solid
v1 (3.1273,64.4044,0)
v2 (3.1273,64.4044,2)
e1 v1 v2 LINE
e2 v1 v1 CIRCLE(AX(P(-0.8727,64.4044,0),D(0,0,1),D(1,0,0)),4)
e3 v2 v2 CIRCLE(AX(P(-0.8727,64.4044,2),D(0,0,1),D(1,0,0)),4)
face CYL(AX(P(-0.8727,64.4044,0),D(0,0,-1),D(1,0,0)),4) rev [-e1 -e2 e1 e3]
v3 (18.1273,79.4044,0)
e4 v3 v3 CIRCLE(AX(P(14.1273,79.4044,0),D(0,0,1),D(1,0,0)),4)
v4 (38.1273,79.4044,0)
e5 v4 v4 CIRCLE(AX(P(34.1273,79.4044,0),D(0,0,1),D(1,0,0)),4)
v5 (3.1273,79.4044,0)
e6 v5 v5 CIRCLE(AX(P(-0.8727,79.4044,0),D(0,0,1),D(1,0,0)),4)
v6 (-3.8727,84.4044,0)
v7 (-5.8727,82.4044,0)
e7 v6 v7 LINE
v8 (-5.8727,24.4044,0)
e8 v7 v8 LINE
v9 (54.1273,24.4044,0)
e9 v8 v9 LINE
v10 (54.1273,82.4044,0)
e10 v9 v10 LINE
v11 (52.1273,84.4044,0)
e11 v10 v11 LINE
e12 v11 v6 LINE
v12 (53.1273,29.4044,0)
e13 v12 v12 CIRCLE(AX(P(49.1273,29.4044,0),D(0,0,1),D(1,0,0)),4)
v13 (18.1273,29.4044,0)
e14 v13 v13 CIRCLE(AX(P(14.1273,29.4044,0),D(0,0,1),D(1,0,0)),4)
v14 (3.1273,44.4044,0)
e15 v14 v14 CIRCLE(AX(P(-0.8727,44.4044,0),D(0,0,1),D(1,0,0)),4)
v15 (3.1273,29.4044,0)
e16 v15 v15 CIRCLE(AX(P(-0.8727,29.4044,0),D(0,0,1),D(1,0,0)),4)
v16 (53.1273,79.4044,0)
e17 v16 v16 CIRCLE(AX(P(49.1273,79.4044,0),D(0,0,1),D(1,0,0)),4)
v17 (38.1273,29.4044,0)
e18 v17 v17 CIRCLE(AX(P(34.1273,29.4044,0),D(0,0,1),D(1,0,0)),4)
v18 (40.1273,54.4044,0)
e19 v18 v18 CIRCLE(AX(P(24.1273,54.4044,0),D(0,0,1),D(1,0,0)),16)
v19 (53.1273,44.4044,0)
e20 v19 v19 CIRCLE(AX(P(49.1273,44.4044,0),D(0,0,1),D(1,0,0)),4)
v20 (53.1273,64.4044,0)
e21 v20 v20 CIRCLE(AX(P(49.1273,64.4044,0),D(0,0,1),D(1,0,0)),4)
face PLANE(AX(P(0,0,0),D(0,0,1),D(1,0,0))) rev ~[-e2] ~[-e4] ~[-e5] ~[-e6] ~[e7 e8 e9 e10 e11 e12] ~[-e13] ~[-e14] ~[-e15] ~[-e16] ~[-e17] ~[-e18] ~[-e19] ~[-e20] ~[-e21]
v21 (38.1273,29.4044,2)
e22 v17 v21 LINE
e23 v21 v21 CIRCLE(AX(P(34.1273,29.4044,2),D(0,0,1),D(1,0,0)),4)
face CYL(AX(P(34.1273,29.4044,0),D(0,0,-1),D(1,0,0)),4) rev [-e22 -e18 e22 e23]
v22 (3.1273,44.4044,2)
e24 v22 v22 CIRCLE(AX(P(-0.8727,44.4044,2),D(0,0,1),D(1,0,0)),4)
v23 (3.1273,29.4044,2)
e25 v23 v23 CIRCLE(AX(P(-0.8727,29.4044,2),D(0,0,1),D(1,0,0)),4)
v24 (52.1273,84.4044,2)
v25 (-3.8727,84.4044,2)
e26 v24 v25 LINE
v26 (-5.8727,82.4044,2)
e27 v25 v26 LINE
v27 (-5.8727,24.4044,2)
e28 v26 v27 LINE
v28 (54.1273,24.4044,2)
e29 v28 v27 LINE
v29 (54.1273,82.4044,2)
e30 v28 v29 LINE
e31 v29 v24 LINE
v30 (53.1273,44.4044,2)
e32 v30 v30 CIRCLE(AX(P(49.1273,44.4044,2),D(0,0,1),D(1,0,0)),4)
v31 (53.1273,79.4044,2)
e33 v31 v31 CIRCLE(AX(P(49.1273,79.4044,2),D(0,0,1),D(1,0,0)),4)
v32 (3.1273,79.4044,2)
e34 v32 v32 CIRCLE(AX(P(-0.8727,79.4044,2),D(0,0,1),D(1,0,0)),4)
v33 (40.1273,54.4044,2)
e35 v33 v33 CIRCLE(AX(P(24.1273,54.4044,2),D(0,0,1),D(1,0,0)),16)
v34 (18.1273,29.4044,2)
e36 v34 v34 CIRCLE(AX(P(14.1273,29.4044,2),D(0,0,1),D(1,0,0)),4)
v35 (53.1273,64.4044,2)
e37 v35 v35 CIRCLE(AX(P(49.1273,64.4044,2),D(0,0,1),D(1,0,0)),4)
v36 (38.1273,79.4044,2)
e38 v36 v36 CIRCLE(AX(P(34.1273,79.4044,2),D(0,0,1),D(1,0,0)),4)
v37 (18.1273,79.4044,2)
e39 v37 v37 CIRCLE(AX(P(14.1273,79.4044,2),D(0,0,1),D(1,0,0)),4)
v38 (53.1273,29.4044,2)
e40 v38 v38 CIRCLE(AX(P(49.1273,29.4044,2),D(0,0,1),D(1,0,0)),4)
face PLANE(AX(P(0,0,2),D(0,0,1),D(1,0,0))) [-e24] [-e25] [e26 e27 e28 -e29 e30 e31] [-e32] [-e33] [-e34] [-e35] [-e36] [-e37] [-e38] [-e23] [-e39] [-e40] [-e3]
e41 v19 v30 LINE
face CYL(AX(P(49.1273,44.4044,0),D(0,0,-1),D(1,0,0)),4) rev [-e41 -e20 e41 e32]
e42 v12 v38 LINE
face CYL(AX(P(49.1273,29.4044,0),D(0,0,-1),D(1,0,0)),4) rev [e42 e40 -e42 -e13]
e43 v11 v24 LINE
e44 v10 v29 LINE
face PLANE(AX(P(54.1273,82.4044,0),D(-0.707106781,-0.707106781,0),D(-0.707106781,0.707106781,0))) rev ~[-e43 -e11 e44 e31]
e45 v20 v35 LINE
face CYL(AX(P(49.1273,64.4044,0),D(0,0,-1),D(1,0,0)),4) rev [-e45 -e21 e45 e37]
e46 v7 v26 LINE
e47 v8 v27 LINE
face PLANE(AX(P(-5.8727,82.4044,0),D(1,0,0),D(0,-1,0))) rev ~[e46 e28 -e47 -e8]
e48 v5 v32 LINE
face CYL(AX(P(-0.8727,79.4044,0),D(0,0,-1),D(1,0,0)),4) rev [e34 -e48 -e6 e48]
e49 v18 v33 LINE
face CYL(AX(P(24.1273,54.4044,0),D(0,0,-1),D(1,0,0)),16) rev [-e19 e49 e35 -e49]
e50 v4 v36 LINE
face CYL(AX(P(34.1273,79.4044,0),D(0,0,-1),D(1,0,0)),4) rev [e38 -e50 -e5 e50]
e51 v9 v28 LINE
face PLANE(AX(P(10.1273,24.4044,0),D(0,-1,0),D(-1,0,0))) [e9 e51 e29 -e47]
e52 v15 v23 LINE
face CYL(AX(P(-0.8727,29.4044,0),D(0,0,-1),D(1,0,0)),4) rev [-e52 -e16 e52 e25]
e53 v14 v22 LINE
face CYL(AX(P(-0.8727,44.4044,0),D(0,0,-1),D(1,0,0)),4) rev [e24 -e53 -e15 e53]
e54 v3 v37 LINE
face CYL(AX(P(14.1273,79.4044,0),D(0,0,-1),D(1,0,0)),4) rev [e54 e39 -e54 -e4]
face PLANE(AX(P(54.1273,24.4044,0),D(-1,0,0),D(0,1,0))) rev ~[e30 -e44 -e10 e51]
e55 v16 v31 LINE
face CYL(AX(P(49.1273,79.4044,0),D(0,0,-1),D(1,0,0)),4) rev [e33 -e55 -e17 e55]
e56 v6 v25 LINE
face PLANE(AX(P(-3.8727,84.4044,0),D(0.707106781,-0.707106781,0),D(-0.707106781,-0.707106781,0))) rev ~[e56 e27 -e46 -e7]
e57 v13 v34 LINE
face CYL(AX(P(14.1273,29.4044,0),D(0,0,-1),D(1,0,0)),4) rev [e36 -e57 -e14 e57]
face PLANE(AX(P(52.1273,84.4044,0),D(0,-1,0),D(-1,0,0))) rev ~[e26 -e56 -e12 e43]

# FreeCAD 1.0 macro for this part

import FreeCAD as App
import Part
import Sketcher

V = App.Vector


def add_polygon(sketch, points):
    """Adds a closed chain of lines whose ends are joined by coincident constraints."""
    first, n = sketch.GeometryCount, len(points)
    for a, b in zip(points, points[1:] + points[:1]):
        sketch.addGeometry(Part.LineSegment(App.Vector(*a, 0), App.Vector(*b, 0)), False)
    for i in range(n):
        sketch.addConstraint(Sketcher.Constraint("Coincident", first + i, 2, first + (i + 1) % n, 1))

doc = App.newDocument("Part")
params = doc.addObject("Spreadsheet::Sheet", "Params")
for row, (alias, value) in enumerate([
    ("sketch1_diameter", "8 mm"),
    ("sketch1_diameter2", "32 mm"),
    ("sketch1_width", "60 mm"),
    ("sketch1_width2", "56 mm"),
    ("sketch1_height", "58 mm"),
    ("pad1_length", "2 mm"),
], start=1):
    params.set(f"A{row}", alias)
    params.set(f"B{row}", "=" + value)
    params.setAlias(f"B{row}", alias)

body = doc.addObject("PartDesign::Body", "Body")

sketch1 = body.newObject("Sketcher::SketchObject", "Sketch")
sketch1.AttachmentSupport = (doc.getObject("XY_Plane"), [""])
sketch1.MapMode = "FlatFace"
add_polygon(sketch1, [(-5.9, 82.4), (-5.9, 24.4), (54.1, 24.4), (54.1, 82.4), (52.1, 84.4), (-3.9, 84.4)])
sketch1.addGeometry(Part.Circle(V(-0.9, 29.4, 0), V(0, 0, 1), 4), False)
sketch1.addGeometry(Part.Circle(V(-0.9, 44.4, 0), V(0, 0, 1), 4), False)
sketch1.addGeometry(Part.Circle(V(14.1, 29.4, 0), V(0, 0, 1), 4), False)
sketch1.addGeometry(Part.Circle(V(-0.9, 64.4, 0), V(0, 0, 1), 4), False)
sketch1.addGeometry(Part.Circle(V(-0.9, 79.4, 0), V(0, 0, 1), 4), False)
sketch1.addGeometry(Part.Circle(V(14.1, 79.4, 0), V(0, 0, 1), 4), False)
sketch1.addGeometry(Part.Circle(V(34.1, 29.4, 0), V(0, 0, 1), 4), False)
sketch1.addGeometry(Part.Circle(V(24.1, 54.4, 0), V(0, 0, 1), 16), False)
sketch1.addGeometry(Part.Circle(V(49.1, 29.4, 0), V(0, 0, 1), 4), False)
sketch1.addGeometry(Part.Circle(V(49.1, 44.4, 0), V(0, 0, 1), 4), False)
sketch1.addGeometry(Part.Circle(V(34.1, 79.4, 0), V(0, 0, 1), 4), False)
sketch1.addGeometry(Part.Circle(V(49.1, 64.4, 0), V(0, 0, 1), 4), False)
sketch1.addGeometry(Part.Circle(V(49.1, 79.4, 0), V(0, 0, 1), 4), False)
sketch1.addConstraint(Sketcher.Constraint("Vertical", 0))
sketch1.addConstraint(Sketcher.Constraint("Horizontal", 1))
sketch1.addConstraint(Sketcher.Constraint("Vertical", 2))
sketch1.addConstraint(Sketcher.Constraint("Horizontal", 4))
sketch1.addConstraint(Sketcher.Constraint("Equal", 6, 7))
sketch1.addConstraint(Sketcher.Constraint("Equal", 7, 8))
sketch1.addConstraint(Sketcher.Constraint("Equal", 8, 9))
sketch1.addConstraint(Sketcher.Constraint("Equal", 9, 10))
sketch1.addConstraint(Sketcher.Constraint("Equal", 10, 11))
sketch1.addConstraint(Sketcher.Constraint("Equal", 11, 12))
sketch1.addConstraint(Sketcher.Constraint("Equal", 12, 14))
sketch1.addConstraint(Sketcher.Constraint("Equal", 14, 15))
sketch1.addConstraint(Sketcher.Constraint("Equal", 15, 16))
sketch1.addConstraint(Sketcher.Constraint("Equal", 16, 17))
sketch1.addConstraint(Sketcher.Constraint("Equal", 17, 18))
sketch1.addConstraint(Sketcher.Constraint("Perpendicular", 3, 5))
sketch1.addConstraint(Sketcher.Constraint("Horizontal", 6, 3, 8, 3))
sketch1.addConstraint(Sketcher.Constraint("Horizontal", 10, 3, 11, 3))
sketch1.addConstraint(Sketcher.Constraint("Horizontal", 8, 3, 12, 3))
sketch1.addConstraint(Sketcher.Constraint("Horizontal", 12, 3, 14, 3))
sketch1.addConstraint(Sketcher.Constraint("Horizontal", 7, 3, 15, 3))
sketch1.addConstraint(Sketcher.Constraint("Horizontal", 11, 3, 16, 3))
sketch1.addConstraint(Sketcher.Constraint("Horizontal", 9, 3, 17, 3))
sketch1.addConstraint(Sketcher.Constraint("Horizontal", 16, 3, 18, 3))
sketch1.addConstraint(Sketcher.Constraint("Horizontal", 2, 2, 5, 2))
sketch1.addConstraint(Sketcher.Constraint("Vertical", 6, 3, 7, 3))
sketch1.addConstraint(Sketcher.Constraint("Vertical", 7, 3, 9, 3))
sketch1.addConstraint(Sketcher.Constraint("Vertical", 9, 3, 10, 3))
sketch1.addConstraint(Sketcher.Constraint("Vertical", 8, 3, 11, 3))
sketch1.addConstraint(Sketcher.Constraint("Vertical", 14, 3, 15, 3))
sketch1.addConstraint(Sketcher.Constraint("Vertical", 12, 3, 16, 3))
sketch1.addConstraint(Sketcher.Constraint("Vertical", 15, 3, 17, 3))
sketch1.addConstraint(Sketcher.Constraint("Vertical", 17, 3, 18, 3))
sketch1.addConstraint(Sketcher.Constraint("Equal", 3, 5))
sketch1.addConstraint(Sketcher.Constraint("Diameter", 6, 8.0))
sketch1.addConstraint(Sketcher.Constraint("Diameter", 13, 32.0))
sketch1.addConstraint(Sketcher.Constraint("DistanceX", 1, 1, 1, 2, 60.0))
sketch1.addConstraint(Sketcher.Constraint("DistanceX", 4, 2, 4, 1, 56.0))
sketch1.addConstraint(Sketcher.Constraint("DistanceY", 0, 2, 0, 1, 58.0))
sketch1.addConstraint(Sketcher.Constraint("DistanceY", 6, 3, 7, 3, 15.0))
sketch1.addConstraint(Sketcher.Constraint("DistanceX", 6, 3, 8, 3, 15.0))
sketch1.addConstraint(Sketcher.Constraint("DistanceY", 7, 3, 9, 3, 20.0))
sketch1.addConstraint(Sketcher.Constraint("DistanceY", 9, 3, 10, 3, 15.0))
sketch1.addConstraint(Sketcher.Constraint("DistanceX", 8, 3, 12, 3, 20.0))
sketch1.addConstraint(Sketcher.Constraint("DistanceX", 9, 3, 13, 3, 25.0))
sketch1.addConstraint(Sketcher.Constraint("DistanceY", 13, 3, 9, 3, 10.0))
sketch1.addConstraint(Sketcher.Constraint("DistanceX", 12, 3, 14, 3, 15.0))
sketch1.addConstraint(Sketcher.Constraint("DistanceX", 0, 2, 6, 3, 5.0))
sketch1.addConstraint(Sketcher.Constraint("DistanceY", 0, 2, 6, 3, 5.0))
sketch1.addConstraint(Sketcher.Constraint("DistanceX", 6, 3, -1, 1, 0.8727))
sketch1.addConstraint(Sketcher.Constraint("DistanceY", -1, 1, 6, 3, 29.4044))
sketch1.setExpression("Constraints[40]", "Params.sketch1_diameter")
sketch1.setExpression("Constraints[41]", "Params.sketch1_diameter2")
sketch1.setExpression("Constraints[42]", "Params.sketch1_width")
sketch1.setExpression("Constraints[43]", "Params.sketch1_width2")
sketch1.setExpression("Constraints[44]", "Params.sketch1_height")
pad1 = body.newObject("PartDesign::Pad", "Pad")
pad1.Profile = sketch1
pad1.setExpression("Length", "Params.pad1_length")

doc.recompute()
